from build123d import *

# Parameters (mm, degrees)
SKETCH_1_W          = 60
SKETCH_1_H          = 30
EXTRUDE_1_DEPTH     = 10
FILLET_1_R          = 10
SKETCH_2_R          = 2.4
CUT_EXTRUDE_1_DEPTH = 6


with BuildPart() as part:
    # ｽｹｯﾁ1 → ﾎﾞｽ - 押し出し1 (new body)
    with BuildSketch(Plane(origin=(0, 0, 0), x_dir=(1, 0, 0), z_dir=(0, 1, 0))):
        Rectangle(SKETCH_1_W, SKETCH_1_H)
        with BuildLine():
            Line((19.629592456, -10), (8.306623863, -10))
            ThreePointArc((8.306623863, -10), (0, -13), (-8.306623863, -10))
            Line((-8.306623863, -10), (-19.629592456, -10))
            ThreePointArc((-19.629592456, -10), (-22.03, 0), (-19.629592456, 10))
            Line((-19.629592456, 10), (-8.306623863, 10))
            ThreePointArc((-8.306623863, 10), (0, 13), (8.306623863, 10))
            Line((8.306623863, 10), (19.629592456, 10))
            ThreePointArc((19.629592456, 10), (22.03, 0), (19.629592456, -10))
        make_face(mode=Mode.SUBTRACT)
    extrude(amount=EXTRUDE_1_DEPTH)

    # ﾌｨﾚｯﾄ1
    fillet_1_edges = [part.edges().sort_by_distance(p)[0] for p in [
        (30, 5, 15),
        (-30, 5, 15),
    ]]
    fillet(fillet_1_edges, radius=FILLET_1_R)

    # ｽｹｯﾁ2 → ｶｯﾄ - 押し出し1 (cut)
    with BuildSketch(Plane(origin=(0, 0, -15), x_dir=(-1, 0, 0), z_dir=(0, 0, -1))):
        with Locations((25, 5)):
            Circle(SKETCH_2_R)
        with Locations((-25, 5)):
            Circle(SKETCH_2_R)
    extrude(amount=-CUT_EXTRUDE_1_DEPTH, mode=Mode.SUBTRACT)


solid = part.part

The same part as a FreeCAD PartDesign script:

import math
import FreeCAD as App
import Part
import Sketcher
from FreeCAD import Vector
Q = App.Units.Quantity


def edges_at(feature, points):
    """Names of the edges that pass closest to the given points."""
    edges = feature.Shape.Edges
    near = lambda p: min(range(len(edges)), key=lambda i: edges[i].distToShape(Part.Vertex(*p))[0])
    return sorted({f"Edge{near(p) + 1}" for p in points})

doc = App.newDocument("Part")
body = doc.addObject("PartDesign::Body", "Body")

sketch1 = body.newObject("Sketcher::SketchObject", "Sketch")
sketch1.AttachmentSupport = (doc.getObject("XZ_Plane"), [""])
sketch1.MapMode = "FlatFace"
sketch1.addGeometry([
    Part.LineSegment(Vector(-30, -15, 0), Vector(-30, 15, 0)),
    Part.LineSegment(Vector(-30, 15, 0), Vector(30, 15, 0)),
    Part.LineSegment(Vector(30, 15, 0), Vector(30, -15, 0)),
    Part.LineSegment(Vector(30, -15, 0), Vector(-30, -15, 0)),
    Part.ArcOfCircle(Part.Circle(Vector(0, 0, 0), Vector(0, 0, 1), 22), math.radians(-27), math.radians(27)),
    Part.LineSegment(Vector(20, 10, 0), Vector(8, 10, 0)),
    Part.ArcOfCircle(Part.Circle(Vector(0, 0, 0), Vector(0, 0, 1), 13), math.radians(50), math.radians(130)),
    Part.LineSegment(Vector(-8, 10, 0), Vector(-20, 10, 0)),
    Part.ArcOfCircle(Part.Circle(Vector(0, 0, 0), Vector(0, 0, 1), 22), math.radians(153), math.radians(207)),
    Part.LineSegment(Vector(-20, -10, 0), Vector(-8, -10, 0)),
    Part.ArcOfCircle(Part.Circle(Vector(0, 0, 0), Vector(0, 0, 1), 13), math.radians(-130), math.radians(-50)),
    Part.LineSegment(Vector(8, -10, 0), Vector(20, -10, 0)),
], False)
sketch1.addConstraint([
    Sketcher.Constraint("Coincident", 0, 2, 1, 1),
    Sketcher.Constraint("Coincident", 1, 2, 2, 1),
    Sketcher.Constraint("Coincident", 2, 2, 3, 1),
    Sketcher.Constraint("Coincident", 3, 2, 0, 1),
    Sketcher.Constraint("Coincident", 4, 2, 5, 1),
    Sketcher.Constraint("Coincident", 5, 2, 6, 1),
    Sketcher.Constraint("Coincident", 6, 2, 7, 1),
    Sketcher.Constraint("Coincident", 7, 2, 8, 1),
    Sketcher.Constraint("Coincident", 8, 2, 9, 1),
    Sketcher.Constraint("Coincident", 9, 2, 10, 1),
    Sketcher.Constraint("Coincident", 10, 2, 11, 1),
    Sketcher.Constraint("Coincident", 11, 2, 4, 1),
    Sketcher.Constraint("Vertical", 0),
    Sketcher.Constraint("Horizontal", 1),
    Sketcher.Constraint("Vertical", 2),
    Sketcher.Constraint("Horizontal", 3),
    Sketcher.Constraint("Horizontal", 5),
    Sketcher.Constraint("Horizontal", 7),
    Sketcher.Constraint("Horizontal", 9),
    Sketcher.Constraint("Horizontal", 11),
    Sketcher.Constraint("Coincident", 4, 3, -1, 1),
    Sketcher.Constraint("Coincident", 6, 3, -1, 1),
    Sketcher.Constraint("Coincident", 8, 3, -1, 1),
    Sketcher.Constraint("Coincident", 10, 3, -1, 1),
    Sketcher.Constraint("Equal", 4, 8),
    Sketcher.Constraint("Equal", 6, 10),
    Sketcher.Constraint("Symmetric", 0, 2, 2, 2, -1, 1),
    Sketcher.Constraint("Horizontal", 5, 2, 6, 2),
    Sketcher.Constraint("Horizontal", 9, 2, 10, 2),
    Sketcher.Constraint("Vertical", 7, 2, 8, 2),
    Sketcher.Constraint("Radius", 6, Q("13 mm")),
    Sketcher.Constraint("DistanceX", 1, 1, 1, 2, Q("60 mm")),
    Sketcher.Constraint("DistanceY", 0, 1, 0, 2, Q("30 mm")),
    Sketcher.Constraint("Radius", 4, Q("22.03 mm")),
    Sketcher.Constraint("DistanceY", -1, 1, 4, 2, Q("10 mm")),
])
pad1 = body.newObject("PartDesign::Pad", "Pad")
pad1.Profile = sketch1
pad1.Length = 10
pad1.Reversed = True
doc.recompute()

fillet = body.newObject("PartDesign::Fillet", "Fillet")
fillet.Base = (pad1, edges_at(pad1, [(30, 5, 15), (-30, 5, 15)]))
fillet.Radius = 10

sketch2 = body.newObject("Sketcher::SketchObject", "Sketch001")
sketch2.AttachmentSupport = (doc.getObject("XY_Plane"), [""])
sketch2.MapMode = "FlatFace"
sketch2.AttachmentOffset = App.Placement(Vector(0, 0, -15), App.Rotation())
sketch2.addGeometry([
    Part.Circle(Vector(-25, 5, 0), Vector(0, 0, 1), 2.4),
    Part.Circle(Vector(25, 5, 0), Vector(0, 0, 1), 2.4),
], False)
sketch2.addConstraint([
    Sketcher.Constraint("Equal", 0, 1),
    Sketcher.Constraint("Symmetric", 0, 3, 1, 3, -2),
    Sketcher.Constraint("Diameter", 0, Q("4.8 mm")),
    Sketcher.Constraint("DistanceX", 0, 3, -1, 1, Q("25 mm")),
    Sketcher.Constraint("DistanceY", -1, 1, 0, 3, Q("5 mm")),
])
pocket1 = body.newObject("PartDesign::Pocket", "Pocket")
pocket1.Profile = sketch2
pocket1.Length = 6
pocket1.Reversed = True

doc.recompute()
